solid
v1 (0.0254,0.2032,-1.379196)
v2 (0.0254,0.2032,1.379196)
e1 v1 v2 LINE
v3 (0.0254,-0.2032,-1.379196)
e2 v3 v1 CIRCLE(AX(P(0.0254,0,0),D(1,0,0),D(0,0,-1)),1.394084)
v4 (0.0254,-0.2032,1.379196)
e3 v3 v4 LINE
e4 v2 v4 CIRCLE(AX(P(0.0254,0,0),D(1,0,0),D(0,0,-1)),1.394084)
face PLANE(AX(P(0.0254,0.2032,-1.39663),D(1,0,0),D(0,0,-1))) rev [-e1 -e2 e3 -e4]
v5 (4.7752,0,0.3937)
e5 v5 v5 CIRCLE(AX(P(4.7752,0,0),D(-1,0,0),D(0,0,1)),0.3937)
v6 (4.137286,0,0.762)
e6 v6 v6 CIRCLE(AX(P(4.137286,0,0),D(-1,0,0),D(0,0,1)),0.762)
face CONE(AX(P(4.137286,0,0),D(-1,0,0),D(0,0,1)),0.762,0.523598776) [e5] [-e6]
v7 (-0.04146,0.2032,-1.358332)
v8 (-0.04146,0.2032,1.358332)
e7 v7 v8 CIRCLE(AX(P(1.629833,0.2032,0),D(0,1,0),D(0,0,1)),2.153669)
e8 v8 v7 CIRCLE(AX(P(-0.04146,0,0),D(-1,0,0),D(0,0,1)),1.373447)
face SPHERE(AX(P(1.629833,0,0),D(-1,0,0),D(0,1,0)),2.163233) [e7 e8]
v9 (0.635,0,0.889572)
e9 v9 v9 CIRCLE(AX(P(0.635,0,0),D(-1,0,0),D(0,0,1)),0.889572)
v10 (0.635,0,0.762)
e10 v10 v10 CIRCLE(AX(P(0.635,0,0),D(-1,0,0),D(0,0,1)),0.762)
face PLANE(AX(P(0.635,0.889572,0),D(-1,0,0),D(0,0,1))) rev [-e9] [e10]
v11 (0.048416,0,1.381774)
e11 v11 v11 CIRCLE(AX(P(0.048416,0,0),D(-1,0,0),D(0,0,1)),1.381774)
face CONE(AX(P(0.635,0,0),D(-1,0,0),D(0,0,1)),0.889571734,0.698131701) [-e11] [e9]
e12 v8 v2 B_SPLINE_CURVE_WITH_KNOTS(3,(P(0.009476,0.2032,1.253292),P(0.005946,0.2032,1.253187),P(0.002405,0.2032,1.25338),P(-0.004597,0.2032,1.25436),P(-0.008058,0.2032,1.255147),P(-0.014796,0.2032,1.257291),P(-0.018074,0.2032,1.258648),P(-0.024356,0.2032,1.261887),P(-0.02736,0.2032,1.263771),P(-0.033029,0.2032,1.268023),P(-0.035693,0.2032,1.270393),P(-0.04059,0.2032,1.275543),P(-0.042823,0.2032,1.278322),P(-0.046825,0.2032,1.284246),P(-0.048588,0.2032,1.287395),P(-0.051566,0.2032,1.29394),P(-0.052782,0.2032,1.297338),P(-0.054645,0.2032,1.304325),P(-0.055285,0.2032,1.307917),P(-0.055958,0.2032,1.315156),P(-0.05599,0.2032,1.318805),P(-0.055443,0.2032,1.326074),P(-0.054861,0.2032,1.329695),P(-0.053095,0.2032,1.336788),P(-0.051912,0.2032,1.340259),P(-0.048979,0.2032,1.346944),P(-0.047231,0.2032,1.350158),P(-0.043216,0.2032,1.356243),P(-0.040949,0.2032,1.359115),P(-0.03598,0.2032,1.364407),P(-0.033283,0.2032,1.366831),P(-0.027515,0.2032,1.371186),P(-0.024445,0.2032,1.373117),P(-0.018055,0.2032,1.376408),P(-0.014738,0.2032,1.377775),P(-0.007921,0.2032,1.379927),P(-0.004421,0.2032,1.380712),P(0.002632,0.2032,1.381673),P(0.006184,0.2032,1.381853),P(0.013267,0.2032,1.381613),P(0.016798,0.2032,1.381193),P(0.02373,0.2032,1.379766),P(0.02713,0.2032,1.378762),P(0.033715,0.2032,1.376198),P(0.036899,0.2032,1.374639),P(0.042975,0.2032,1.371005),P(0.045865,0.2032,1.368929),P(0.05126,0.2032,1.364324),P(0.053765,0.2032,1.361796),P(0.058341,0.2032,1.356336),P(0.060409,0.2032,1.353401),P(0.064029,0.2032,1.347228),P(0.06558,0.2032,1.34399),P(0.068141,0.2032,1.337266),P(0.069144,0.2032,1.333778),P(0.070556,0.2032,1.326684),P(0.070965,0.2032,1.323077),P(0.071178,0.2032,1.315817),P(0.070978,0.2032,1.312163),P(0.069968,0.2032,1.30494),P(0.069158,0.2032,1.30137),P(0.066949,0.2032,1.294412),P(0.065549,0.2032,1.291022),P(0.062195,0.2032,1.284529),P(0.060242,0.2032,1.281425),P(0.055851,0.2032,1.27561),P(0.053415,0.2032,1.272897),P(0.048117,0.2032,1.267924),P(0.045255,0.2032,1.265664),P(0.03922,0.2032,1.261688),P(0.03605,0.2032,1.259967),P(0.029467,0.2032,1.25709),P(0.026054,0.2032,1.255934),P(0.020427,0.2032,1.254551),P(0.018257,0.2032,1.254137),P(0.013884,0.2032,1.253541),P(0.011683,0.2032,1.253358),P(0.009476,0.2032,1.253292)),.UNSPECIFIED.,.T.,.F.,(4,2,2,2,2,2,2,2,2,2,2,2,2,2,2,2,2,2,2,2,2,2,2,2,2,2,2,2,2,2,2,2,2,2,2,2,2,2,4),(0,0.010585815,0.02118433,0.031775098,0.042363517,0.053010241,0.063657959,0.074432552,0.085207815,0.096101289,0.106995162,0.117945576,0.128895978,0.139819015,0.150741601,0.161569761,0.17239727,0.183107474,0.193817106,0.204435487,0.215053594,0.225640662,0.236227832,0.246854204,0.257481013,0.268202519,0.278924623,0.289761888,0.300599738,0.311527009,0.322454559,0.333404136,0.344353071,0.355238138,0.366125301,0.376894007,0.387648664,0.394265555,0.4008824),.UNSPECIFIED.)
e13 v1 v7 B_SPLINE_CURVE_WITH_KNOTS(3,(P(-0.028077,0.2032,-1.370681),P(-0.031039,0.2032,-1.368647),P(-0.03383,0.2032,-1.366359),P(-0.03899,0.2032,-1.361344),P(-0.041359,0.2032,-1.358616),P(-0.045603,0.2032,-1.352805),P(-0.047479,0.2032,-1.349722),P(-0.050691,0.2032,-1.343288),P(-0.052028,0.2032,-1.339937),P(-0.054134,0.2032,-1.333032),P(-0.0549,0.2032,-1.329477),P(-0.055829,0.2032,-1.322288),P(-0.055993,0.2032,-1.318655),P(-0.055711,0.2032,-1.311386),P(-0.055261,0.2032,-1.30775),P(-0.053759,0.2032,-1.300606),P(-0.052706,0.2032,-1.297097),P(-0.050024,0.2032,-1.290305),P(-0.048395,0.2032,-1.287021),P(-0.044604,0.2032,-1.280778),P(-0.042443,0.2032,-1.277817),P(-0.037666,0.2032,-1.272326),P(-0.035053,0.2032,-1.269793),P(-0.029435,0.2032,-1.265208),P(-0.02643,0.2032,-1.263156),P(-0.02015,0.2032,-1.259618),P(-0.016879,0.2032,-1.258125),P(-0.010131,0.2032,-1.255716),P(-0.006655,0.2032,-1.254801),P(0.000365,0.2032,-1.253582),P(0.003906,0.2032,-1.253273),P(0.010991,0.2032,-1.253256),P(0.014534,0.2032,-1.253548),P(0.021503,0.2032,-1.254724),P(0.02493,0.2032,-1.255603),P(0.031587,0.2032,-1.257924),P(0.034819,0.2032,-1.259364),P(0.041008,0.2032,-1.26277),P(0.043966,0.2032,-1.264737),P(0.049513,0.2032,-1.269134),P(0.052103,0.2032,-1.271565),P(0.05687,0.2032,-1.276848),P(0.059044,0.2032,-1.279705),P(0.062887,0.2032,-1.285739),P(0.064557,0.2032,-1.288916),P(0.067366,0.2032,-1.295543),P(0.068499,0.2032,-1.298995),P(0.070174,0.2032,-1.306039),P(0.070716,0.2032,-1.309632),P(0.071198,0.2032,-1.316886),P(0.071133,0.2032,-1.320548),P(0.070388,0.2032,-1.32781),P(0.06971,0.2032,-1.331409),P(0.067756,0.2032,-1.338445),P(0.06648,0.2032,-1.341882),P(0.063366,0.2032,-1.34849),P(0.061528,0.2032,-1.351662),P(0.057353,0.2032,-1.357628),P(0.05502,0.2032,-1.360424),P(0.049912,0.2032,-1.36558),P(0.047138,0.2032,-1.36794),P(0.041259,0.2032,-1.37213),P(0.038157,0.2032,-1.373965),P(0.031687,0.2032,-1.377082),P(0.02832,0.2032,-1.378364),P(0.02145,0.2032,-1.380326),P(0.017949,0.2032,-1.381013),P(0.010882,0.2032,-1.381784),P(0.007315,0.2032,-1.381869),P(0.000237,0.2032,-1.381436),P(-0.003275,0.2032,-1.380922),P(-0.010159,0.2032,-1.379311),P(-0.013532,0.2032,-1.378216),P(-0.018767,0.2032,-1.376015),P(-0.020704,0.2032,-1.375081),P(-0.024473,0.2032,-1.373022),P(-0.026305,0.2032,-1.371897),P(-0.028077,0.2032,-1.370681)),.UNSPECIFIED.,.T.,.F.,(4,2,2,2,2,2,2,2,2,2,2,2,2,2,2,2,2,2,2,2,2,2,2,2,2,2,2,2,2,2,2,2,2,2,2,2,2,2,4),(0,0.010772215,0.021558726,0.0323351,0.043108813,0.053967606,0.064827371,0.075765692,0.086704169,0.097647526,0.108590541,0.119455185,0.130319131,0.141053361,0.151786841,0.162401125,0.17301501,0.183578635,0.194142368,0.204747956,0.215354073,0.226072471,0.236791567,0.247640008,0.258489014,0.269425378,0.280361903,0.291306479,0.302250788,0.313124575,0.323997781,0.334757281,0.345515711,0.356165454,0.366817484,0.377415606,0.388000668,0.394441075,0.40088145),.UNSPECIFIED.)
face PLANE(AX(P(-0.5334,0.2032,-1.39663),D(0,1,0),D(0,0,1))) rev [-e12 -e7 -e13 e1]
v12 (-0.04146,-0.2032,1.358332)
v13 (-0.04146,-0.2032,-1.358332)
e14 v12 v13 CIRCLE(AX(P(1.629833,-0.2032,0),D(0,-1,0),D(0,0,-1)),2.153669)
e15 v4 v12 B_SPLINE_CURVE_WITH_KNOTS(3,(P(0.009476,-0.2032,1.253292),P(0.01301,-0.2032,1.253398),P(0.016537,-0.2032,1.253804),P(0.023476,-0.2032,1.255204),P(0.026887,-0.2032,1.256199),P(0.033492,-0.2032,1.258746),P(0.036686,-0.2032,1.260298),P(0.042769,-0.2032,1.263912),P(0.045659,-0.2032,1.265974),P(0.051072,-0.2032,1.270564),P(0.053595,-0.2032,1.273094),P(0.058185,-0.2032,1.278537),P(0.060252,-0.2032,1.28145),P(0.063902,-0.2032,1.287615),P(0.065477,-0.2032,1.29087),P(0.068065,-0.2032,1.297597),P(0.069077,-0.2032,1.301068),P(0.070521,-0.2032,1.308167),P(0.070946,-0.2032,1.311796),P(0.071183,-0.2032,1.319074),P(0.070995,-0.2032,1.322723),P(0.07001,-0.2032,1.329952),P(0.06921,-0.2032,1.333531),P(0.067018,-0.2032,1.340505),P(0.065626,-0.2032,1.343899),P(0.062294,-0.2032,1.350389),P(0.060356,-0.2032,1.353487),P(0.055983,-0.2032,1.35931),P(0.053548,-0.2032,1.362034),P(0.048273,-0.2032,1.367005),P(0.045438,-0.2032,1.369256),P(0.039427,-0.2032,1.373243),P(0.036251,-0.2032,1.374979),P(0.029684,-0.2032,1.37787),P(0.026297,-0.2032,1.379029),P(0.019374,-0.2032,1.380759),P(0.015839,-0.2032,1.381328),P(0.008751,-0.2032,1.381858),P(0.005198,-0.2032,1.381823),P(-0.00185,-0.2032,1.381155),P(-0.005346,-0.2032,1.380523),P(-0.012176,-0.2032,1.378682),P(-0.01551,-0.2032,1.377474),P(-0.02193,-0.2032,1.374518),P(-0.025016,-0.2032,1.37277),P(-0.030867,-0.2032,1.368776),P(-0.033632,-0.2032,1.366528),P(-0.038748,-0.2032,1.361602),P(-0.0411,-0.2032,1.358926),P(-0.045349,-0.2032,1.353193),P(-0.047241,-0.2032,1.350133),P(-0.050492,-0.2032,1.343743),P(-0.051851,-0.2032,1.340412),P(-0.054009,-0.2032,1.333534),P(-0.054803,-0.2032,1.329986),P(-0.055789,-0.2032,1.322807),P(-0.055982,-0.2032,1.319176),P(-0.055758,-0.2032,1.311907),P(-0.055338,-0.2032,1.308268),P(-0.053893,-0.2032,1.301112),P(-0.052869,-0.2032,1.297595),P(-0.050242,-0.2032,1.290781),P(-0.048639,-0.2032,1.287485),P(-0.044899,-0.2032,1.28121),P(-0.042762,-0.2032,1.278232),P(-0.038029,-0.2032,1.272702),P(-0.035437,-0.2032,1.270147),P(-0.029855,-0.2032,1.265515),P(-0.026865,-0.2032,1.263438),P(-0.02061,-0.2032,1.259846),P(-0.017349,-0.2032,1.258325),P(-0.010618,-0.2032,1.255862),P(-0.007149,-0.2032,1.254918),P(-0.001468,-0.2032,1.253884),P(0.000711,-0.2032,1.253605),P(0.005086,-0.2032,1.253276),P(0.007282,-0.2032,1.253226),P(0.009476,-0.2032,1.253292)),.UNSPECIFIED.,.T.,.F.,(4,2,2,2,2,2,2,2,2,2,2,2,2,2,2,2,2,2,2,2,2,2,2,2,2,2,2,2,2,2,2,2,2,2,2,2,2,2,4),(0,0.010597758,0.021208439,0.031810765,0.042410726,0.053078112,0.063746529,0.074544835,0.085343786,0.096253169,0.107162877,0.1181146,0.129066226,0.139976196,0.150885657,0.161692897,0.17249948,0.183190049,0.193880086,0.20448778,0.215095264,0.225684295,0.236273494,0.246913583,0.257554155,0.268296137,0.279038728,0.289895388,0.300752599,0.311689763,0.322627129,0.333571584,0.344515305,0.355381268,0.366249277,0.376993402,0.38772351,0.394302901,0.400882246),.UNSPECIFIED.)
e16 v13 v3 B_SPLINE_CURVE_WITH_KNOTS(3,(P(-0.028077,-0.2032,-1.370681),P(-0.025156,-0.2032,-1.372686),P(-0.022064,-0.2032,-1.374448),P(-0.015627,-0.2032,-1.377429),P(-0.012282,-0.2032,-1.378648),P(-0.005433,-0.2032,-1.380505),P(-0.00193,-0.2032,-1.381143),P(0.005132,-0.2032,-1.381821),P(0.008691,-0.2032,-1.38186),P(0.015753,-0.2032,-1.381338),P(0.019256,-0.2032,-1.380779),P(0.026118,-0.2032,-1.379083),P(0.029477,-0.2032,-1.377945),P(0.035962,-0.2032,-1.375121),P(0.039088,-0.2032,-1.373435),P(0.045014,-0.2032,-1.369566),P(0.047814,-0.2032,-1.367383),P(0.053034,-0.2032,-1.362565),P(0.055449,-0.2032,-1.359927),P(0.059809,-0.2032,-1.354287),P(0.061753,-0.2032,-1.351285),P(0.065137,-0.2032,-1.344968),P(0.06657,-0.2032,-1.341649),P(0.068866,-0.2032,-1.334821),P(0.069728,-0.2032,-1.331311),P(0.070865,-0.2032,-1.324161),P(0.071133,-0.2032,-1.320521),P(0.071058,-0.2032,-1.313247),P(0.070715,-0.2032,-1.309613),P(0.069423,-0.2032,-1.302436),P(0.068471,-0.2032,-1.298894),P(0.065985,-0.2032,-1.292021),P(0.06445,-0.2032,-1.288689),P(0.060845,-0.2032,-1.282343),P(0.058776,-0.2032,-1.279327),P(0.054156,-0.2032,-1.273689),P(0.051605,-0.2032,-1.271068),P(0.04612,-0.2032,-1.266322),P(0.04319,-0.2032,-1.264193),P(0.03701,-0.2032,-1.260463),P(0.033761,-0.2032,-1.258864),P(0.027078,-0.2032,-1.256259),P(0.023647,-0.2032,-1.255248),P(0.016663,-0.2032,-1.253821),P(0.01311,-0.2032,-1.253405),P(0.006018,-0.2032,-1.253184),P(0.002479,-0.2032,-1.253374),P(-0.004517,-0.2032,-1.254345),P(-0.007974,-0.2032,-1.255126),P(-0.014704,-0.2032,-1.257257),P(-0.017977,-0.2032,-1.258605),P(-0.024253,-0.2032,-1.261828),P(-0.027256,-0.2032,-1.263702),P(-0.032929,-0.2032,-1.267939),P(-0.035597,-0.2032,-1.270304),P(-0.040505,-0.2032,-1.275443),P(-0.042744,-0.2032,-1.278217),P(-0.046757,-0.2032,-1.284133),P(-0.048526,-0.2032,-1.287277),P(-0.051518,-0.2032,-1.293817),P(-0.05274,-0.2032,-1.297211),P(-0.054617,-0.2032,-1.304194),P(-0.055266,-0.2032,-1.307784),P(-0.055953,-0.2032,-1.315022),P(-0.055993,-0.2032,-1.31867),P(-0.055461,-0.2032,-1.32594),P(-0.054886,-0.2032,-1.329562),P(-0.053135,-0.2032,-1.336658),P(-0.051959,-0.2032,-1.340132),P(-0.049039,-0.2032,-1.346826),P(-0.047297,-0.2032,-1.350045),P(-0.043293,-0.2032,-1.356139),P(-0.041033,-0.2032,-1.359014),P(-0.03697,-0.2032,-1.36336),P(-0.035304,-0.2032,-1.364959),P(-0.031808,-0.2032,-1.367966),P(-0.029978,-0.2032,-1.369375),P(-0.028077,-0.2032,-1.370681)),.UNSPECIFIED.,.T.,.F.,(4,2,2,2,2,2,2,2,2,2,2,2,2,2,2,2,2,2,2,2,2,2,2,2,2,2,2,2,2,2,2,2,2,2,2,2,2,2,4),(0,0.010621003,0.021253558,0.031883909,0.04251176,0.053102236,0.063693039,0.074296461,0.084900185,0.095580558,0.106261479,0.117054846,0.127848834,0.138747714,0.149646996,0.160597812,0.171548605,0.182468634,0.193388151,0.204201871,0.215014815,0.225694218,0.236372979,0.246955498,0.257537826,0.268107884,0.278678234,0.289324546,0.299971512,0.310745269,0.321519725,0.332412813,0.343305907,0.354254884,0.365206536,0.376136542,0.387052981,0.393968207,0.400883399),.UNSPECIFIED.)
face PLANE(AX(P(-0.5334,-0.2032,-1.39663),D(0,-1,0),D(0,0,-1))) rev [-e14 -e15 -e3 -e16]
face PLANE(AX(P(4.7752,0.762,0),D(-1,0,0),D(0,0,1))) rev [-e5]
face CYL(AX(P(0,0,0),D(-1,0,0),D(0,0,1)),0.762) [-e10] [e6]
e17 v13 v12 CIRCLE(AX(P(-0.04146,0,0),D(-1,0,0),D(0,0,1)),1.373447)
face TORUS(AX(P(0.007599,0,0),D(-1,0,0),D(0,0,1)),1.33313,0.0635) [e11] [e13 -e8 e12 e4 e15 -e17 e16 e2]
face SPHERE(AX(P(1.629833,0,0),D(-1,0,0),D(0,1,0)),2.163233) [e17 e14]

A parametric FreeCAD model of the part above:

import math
import FreeCAD as App
import Part
import Sketcher

V = App.Vector
Q = App.Units.Quantity

doc = App.newDocument("Part")
body = doc.addObject("PartDesign::Body", "Body")

sketch1 = body.newObject("Sketcher::SketchObject", "Sketch")
sketch1.AttachmentSupport = (doc.getObject("XY_Plane"), [""])
sketch1.MapMode = "FlatFace"
sketch1.addGeometry(Part.LineSegment(V(0.64, 0.89, 0), V(0.05, 1.38, 0)), False)
sketch1.addGeometry(Part.ArcOfCircle(Part.Circle(V(0.01, 1.33, 0), V(0, 0, 1), 0.06), math.radians(50), math.radians(141)), False)
sketch1.addGeometry(Part.ArcOfCircle(Part.Circle(V(1.63, 0, 0), V(0, 0, 1), 2.16), math.radians(141), math.radians(180)), False)
sketch1.addGeometry(Part.LineSegment(V(-0.53, 0, 0), V(4.78, 0, 0)), False)
sketch1.addGeometry(Part.LineSegment(V(4.78, 0, 0), V(4.78, 0.76, 0)), False)
sketch1.addGeometry(Part.LineSegment(V(4.78, 0.76, 0), V(0.64, 0.76, 0)), False)
sketch1.addGeometry(Part.LineSegment(V(0.64, 0.76, 0), V(0.64, 0.89, 0)), False)
sketch1.addConstraint(Sketcher.Constraint("Tangent", 0, 2, 1, 1))
sketch1.addConstraint(Sketcher.Constraint("Tangent", 1, 2, 2, 1))
sketch1.addConstraint(Sketcher.Constraint("Coincident", 2, 2, 3, 1))
sketch1.addConstraint(Sketcher.Constraint("Coincident", 3, 2, 4, 1))
sketch1.addConstraint(Sketcher.Constraint("Coincident", 4, 2, 5, 1))
sketch1.addConstraint(Sketcher.Constraint("Coincident", 5, 2, 6, 1))
sketch1.addConstraint(Sketcher.Constraint("Coincident", 6, 2, 0, 1))
sketch1.addConstraint(Sketcher.Constraint("Horizontal", 3))
sketch1.addConstraint(Sketcher.Constraint("Vertical", 4))
sketch1.addConstraint(Sketcher.Constraint("Horizontal", 5))
sketch1.addConstraint(Sketcher.Constraint("Vertical", 6))
sketch1.addConstraint(Sketcher.Constraint("PointOnObject", 2, 3, -1))
sketch1.addConstraint(Sketcher.Constraint("PointOnObject", 2, 2, -1))
sketch1.addConstraint(Sketcher.Constraint("Angle", 0, Q("140 deg")))
sketch1.addConstraint(Sketcher.Constraint("DistanceY", 4, 1, 4, 2, Q("0.03 in")))
sketch1.addConstraint(Sketcher.Constraint("Radius", 1, Q("0.0025 in")))
sketch1.addConstraint(Sketcher.Constraint("DistanceX", 3, 1, 3, 2, Q("0.209 in")))
sketch1.addConstraint(Sketcher.Constraint("DistanceX", 5, 2, 5, 1, Q("0.163 in")))
sketch1.addConstraint(Sketcher.Constraint("DistanceX", 2, 2, -1, 1, Q("0.021 in")))
sketch1.addConstraint(Sketcher.Constraint("Radius", 2, Q("2.163233 mm")))
sketch1.addConstraint(Sketcher.Constraint("DistanceY", 6, 1, 6, 2, Q("0.127572 mm")))
revolution = body.newObject("PartDesign::Revolution", "Revolution")
revolution.Profile = sketch1
revolution.ReferenceAxis = (sketch1, ["H_Axis"])
revolution.Angle = 360

sketch2 = body.newObject("Sketcher::SketchObject", "Sketch001")
sketch2.AttachmentSupport = (doc.getObject("XY_Plane"), [""])
sketch2.MapMode = "FlatFace"
sketch2.addGeometry(Part.LineSegment(V(-0.53, 0.2, 0), V(-0.53, -0.2, 0)), False)
sketch2.addGeometry(Part.LineSegment(V(-0.53, -0.2, 0), V(0.03, -0.2, 0)), False)
sketch2.addGeometry(Part.LineSegment(V(0.03, -0.2, 0), V(0.03, 0.2, 0)), False)
sketch2.addGeometry(Part.LineSegment(V(0.03, 0.2, 0), V(-0.53, 0.2, 0)), False)
sketch2.addConstraint(Sketcher.Constraint("Coincident", 0, 2, 1, 1))
sketch2.addConstraint(Sketcher.Constraint("Coincident", 1, 2, 2, 1))
sketch2.addConstraint(Sketcher.Constraint("Coincident", 2, 2, 3, 1))
sketch2.addConstraint(Sketcher.Constraint("Coincident", 3, 2, 0, 1))
sketch2.addConstraint(Sketcher.Constraint("Vertical", 0))
sketch2.addConstraint(Sketcher.Constraint("Horizontal", 1))
sketch2.addConstraint(Sketcher.Constraint("Vertical", 2))
sketch2.addConstraint(Sketcher.Constraint("Horizontal", 3))
sketch2.addConstraint(Sketcher.Constraint("DistanceX", 1, 1, 1, 2, Q("0.022 in")))
sketch2.addConstraint(Sketcher.Constraint("DistanceY", 0, 2, 0, 1, Q("0.016 in")))
sketch2.addConstraint(Sketcher.Constraint("DistanceX", 0, 2, -1, 1, Q("0.021 in")))
sketch2.addConstraint(Sketcher.Constraint("DistanceY", 0, 2, -1, 1, Q("0.008 in")))
pocket1 = body.newObject("PartDesign::Pocket", "Pocket")
pocket1.Profile = sketch2
pocket1.Type = "ThroughAll"
pocket1.Midplane = True

sketch3 = body.newObject("Sketcher::SketchObject", "Sketch002")
sketch3.AttachmentSupport = (doc.getObject("XY_Plane"), [""])
sketch3.MapMode = "FlatFace"
sketch3.addGeometry(Part.LineSegment(V(4.78, 0, 0), V(5.28, 0, 0)), False)
sketch3.addGeometry(Part.LineSegment(V(5.28, 0, 0), V(5.28, 1.27, 0)), False)
sketch3.addGeometry(Part.LineSegment(V(5.28, 1.27, 0), V(4.14, 1.27, 0)), False)
sketch3.addGeometry(Part.LineSegment(V(4.14, 1.27, 0), V(4.14, 0.76, 0)), False)
sketch3.addGeometry(Part.LineSegment(V(4.14, 0.76, 0), V(4.78, 0.39, 0)), False)
sketch3.addGeometry(Part.LineSegment(V(4.78, 0.39, 0), V(4.78, 0, 0)), False)
sketch3.addConstraint(Sketcher.Constraint("Coincident", 0, 2, 1, 1))
sketch3.addConstraint(Sketcher.Constraint("Coincident", 1, 2, 2, 1))
sketch3.addConstraint(Sketcher.Constraint("Coincident", 2, 2, 3, 1))
sketch3.addConstraint(Sketcher.Constraint("Coincident", 3, 2, 4, 1))
sketch3.addConstraint(Sketcher.Constraint("Coincident", 4, 2, 5, 1))
sketch3.addConstraint(Sketcher.Constraint("Coincident", 5, 2, 0, 1))
sketch3.addConstraint(Sketcher.Constraint("Horizontal", 0))
sketch3.addConstraint(Sketcher.Constraint("Vertical", 1))
sketch3.addConstraint(Sketcher.Constraint("Horizontal", 2))
sketch3.addConstraint(Sketcher.Constraint("Vertical", 3))
sketch3.addConstraint(Sketcher.Constraint("Vertical", 5))
sketch3.addConstraint(Sketcher.Constraint("PointOnObject", 0, 2, -1))
sketch3.addConstraint(Sketcher.Constraint("Equal", 0, 3))
sketch3.addConstraint(Sketcher.Constraint("Angle", 4, Q("-30 deg")))
sketch3.addConstraint(Sketcher.Constraint("DistanceX", 0, 1, 0, 2, Q("0.02 in")))
sketch3.addConstraint(Sketcher.Constraint("DistanceY", 1, 1, 1, 2, Q("0.05 in")))
sketch3.addConstraint(Sketcher.Constraint("Distance", 4, Q("0.029 in")))
sketch3.addConstraint(Sketcher.Constraint("DistanceX", -1, 1, 0, 2, Q("0.208 in")))
groove = body.newObject("PartDesign::Groove", "Groove")
groove.Profile = sketch3
groove.ReferenceAxis = (sketch3, ["H_Axis"])
groove.Angle = 360

doc.recompute()
